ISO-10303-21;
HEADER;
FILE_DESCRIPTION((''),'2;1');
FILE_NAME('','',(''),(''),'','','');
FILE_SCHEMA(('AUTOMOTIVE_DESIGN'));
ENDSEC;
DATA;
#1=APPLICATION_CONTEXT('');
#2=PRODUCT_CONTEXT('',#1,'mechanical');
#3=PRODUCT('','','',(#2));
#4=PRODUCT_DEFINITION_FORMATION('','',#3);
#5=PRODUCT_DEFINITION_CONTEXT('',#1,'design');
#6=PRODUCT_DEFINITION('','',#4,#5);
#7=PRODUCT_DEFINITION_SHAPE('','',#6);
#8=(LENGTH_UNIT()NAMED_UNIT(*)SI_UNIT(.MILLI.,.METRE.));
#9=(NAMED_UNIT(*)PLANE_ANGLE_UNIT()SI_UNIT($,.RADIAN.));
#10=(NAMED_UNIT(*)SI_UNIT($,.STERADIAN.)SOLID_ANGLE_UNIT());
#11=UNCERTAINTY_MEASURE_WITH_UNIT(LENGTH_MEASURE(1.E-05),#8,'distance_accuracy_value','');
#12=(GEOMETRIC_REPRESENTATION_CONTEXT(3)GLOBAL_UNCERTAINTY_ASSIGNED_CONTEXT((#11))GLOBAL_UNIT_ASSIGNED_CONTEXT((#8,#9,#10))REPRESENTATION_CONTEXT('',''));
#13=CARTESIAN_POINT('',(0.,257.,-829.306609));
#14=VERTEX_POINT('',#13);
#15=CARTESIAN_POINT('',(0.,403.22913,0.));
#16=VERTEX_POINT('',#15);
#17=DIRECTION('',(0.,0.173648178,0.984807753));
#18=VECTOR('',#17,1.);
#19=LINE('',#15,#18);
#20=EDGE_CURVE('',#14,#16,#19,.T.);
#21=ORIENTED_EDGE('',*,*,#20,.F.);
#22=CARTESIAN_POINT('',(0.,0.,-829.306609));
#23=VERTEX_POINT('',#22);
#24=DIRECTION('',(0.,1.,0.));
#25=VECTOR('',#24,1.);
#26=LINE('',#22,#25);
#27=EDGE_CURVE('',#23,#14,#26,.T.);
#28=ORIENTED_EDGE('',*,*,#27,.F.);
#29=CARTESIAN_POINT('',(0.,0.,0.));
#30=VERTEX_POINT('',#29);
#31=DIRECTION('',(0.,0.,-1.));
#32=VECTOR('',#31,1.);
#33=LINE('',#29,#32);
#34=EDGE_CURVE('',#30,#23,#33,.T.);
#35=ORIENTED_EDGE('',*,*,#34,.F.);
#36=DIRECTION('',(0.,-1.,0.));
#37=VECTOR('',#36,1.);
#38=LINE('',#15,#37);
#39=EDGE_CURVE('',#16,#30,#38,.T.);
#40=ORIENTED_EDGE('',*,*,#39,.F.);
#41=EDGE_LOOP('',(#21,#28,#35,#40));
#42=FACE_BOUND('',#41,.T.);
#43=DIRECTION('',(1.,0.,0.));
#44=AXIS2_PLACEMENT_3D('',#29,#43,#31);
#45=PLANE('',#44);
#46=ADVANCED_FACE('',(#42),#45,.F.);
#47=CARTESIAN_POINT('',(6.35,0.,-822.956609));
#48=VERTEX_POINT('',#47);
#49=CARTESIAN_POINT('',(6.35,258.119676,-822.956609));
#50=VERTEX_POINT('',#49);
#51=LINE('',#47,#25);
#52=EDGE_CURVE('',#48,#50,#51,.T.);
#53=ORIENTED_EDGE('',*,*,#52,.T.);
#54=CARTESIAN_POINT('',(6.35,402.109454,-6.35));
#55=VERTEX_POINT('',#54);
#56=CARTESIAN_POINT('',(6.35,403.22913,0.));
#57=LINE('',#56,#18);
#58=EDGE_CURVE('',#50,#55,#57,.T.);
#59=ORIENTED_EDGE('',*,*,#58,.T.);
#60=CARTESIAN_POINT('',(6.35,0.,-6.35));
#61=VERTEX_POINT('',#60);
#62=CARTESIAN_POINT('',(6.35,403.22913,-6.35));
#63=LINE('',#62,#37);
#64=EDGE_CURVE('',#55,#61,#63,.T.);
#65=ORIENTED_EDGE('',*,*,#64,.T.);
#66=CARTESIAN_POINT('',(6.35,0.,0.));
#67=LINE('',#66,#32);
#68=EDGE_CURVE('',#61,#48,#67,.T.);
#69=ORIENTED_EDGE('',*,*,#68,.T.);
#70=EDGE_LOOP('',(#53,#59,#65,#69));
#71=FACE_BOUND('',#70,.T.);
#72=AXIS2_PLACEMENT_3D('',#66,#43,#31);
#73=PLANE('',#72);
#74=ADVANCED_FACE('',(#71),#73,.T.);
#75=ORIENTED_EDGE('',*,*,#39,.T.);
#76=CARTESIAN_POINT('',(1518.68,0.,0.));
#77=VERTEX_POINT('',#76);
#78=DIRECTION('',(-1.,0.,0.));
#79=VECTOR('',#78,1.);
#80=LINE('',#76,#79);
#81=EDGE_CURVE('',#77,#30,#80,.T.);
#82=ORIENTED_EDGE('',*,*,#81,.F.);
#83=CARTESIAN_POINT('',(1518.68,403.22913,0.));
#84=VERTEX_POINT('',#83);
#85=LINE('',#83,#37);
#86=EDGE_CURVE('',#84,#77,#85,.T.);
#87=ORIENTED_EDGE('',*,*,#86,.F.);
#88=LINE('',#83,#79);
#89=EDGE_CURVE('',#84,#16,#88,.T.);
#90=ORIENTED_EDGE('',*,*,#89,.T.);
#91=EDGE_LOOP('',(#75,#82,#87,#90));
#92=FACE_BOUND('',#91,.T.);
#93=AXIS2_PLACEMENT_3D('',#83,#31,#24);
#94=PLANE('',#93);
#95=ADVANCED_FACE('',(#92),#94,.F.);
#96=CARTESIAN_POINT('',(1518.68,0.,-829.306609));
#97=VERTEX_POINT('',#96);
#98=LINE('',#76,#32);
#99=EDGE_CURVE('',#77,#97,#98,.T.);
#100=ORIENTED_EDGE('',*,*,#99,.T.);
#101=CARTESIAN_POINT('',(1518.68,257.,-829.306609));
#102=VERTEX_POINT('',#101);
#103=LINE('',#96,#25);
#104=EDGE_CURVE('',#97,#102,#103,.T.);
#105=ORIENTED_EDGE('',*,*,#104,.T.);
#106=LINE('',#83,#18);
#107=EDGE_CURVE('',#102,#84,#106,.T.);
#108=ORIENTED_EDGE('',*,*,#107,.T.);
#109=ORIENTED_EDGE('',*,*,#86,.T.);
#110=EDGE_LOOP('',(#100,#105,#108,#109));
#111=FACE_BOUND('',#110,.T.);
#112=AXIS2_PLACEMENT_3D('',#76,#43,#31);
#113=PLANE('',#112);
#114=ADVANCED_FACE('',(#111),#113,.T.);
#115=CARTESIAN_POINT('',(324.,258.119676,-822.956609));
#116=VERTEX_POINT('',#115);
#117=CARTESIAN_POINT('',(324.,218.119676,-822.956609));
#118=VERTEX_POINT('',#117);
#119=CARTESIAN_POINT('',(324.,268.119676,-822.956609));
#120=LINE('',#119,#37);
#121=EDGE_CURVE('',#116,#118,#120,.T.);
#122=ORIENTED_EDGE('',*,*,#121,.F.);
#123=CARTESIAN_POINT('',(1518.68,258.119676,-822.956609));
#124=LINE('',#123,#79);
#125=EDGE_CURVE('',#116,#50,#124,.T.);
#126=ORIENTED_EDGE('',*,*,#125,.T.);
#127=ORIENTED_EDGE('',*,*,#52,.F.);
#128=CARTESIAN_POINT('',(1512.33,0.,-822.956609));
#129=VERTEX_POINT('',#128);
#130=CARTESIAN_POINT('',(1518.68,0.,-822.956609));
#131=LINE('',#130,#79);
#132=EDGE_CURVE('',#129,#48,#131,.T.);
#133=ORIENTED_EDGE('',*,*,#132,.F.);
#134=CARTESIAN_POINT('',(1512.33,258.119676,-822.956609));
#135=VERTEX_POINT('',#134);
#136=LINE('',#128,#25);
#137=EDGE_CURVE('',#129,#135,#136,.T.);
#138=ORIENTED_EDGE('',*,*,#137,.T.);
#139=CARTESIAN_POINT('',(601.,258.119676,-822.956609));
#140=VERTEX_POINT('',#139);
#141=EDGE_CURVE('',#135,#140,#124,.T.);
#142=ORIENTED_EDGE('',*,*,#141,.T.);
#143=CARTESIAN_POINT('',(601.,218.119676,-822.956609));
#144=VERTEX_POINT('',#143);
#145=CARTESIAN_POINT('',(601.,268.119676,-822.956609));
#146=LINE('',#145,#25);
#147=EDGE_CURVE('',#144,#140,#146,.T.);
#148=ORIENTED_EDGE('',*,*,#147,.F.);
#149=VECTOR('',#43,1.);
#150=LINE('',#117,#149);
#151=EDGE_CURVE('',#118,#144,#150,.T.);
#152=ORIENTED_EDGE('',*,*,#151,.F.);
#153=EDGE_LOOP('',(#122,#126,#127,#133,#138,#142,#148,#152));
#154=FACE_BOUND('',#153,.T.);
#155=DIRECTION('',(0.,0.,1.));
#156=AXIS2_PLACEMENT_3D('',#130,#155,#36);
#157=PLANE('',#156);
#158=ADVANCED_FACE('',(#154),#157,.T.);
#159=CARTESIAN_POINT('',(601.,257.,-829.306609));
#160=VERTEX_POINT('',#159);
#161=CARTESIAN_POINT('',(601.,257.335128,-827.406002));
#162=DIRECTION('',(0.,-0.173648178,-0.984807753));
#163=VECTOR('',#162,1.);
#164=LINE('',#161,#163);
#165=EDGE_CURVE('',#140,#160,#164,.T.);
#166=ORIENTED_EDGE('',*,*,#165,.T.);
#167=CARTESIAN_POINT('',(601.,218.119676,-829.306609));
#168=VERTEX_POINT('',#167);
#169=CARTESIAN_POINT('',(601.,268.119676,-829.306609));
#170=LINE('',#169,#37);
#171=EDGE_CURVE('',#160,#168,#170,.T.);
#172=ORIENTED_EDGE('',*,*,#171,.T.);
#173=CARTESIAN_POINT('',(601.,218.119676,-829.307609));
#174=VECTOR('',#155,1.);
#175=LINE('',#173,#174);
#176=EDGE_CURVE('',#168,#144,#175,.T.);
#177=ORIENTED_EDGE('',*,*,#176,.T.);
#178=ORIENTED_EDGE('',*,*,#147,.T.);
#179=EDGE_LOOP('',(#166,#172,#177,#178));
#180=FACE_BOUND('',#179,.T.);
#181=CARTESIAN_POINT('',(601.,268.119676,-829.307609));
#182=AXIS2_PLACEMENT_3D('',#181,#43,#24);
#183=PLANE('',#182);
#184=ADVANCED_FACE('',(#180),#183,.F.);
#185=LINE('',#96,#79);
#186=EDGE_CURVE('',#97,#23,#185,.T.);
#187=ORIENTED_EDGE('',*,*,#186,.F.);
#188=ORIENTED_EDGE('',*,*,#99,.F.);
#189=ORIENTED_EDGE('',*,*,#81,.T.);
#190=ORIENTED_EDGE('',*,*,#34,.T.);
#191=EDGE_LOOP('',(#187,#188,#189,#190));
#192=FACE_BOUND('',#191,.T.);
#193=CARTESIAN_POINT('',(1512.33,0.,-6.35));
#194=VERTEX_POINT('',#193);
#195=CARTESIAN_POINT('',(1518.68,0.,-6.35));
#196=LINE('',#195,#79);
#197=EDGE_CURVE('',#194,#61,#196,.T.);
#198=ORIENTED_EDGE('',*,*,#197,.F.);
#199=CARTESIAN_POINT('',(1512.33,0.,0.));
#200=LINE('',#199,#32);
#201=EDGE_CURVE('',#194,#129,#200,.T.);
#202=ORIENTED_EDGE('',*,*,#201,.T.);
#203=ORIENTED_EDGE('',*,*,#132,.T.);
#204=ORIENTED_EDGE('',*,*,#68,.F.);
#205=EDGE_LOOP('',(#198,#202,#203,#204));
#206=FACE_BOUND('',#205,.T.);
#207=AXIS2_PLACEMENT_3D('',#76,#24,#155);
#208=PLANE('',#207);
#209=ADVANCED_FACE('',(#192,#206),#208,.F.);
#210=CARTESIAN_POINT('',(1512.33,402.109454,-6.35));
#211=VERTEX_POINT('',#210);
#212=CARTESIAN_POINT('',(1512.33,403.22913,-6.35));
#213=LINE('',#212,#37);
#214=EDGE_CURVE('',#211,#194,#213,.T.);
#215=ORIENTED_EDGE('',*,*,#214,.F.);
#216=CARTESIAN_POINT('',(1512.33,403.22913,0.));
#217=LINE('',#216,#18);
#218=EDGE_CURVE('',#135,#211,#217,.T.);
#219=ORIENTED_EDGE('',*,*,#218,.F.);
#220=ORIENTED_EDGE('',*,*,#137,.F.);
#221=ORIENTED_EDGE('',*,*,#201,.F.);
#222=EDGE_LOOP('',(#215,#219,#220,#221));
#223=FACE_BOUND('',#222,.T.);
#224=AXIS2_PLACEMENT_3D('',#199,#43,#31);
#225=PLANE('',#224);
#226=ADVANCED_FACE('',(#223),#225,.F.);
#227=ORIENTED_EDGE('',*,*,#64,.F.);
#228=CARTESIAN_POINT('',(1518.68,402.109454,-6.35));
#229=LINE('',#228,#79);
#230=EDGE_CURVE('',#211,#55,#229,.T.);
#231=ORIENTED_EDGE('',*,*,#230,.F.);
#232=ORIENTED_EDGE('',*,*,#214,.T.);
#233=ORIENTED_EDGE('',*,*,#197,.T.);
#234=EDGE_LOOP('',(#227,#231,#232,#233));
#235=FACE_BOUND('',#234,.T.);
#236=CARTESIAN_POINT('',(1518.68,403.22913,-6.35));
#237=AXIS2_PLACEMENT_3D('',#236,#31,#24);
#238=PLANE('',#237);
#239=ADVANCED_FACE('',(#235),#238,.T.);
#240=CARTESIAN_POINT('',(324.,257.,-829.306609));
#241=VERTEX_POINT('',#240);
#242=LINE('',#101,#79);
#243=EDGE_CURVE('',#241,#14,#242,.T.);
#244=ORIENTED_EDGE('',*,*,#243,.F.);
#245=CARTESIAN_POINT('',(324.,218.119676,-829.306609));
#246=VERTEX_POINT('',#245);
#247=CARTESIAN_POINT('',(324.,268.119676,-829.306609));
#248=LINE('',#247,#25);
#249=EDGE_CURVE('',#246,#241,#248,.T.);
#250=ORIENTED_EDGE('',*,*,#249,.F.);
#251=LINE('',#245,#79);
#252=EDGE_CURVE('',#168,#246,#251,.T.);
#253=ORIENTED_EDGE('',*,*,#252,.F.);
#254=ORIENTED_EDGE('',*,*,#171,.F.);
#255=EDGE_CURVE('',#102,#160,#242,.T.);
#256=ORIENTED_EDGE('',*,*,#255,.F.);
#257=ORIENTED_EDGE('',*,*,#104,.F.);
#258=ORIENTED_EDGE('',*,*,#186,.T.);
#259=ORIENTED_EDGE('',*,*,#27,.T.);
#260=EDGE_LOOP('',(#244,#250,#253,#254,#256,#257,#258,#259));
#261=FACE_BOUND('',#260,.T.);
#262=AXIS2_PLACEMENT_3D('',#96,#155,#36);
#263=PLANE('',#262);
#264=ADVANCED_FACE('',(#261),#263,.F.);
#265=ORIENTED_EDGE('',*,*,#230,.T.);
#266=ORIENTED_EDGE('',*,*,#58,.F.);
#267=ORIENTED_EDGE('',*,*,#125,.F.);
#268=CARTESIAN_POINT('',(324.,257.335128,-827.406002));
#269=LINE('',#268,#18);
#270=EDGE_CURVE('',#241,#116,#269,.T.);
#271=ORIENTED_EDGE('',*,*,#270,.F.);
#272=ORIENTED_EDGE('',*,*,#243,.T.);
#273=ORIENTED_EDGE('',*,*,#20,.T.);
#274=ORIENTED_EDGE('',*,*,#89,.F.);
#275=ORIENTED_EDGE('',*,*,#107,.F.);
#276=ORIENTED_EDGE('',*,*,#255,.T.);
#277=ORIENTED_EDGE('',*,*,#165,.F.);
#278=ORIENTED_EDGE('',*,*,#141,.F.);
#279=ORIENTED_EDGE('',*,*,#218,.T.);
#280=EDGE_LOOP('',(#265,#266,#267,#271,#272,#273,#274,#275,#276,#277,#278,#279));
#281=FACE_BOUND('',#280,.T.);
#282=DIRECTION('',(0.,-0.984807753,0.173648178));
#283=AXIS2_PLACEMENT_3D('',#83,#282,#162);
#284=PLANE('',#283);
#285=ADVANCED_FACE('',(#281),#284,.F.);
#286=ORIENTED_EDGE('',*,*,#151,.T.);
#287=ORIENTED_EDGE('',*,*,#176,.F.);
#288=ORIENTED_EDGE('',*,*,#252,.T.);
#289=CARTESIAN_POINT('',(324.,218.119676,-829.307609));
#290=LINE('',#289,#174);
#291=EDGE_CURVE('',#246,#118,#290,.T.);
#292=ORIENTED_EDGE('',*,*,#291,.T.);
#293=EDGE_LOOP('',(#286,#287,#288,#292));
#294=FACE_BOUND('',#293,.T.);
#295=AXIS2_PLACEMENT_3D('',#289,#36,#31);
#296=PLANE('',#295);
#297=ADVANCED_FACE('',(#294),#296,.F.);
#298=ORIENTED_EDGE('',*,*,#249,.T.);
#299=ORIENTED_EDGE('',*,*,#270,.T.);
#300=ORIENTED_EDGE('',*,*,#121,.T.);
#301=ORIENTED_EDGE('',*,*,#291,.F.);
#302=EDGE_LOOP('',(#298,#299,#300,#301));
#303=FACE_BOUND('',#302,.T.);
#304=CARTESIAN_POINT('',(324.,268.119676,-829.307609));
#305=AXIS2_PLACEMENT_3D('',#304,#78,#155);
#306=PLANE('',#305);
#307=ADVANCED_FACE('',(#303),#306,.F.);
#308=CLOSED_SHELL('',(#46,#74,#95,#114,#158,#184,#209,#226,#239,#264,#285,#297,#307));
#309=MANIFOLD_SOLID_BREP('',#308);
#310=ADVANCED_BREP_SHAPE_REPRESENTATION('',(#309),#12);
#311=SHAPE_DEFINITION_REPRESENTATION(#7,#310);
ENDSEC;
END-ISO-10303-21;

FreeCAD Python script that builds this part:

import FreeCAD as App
import Part
import Sketcher
Q = App.Units.Quantity


def faces_at(feature, points):
    """Names of the faces that lie closest to the given points."""
    faces = feature.Shape.Faces
    near = lambda p: min(range(len(faces)), key=lambda i: faces[i].distToShape(Part.Vertex(*p))[0])
    return sorted({f"Face{near(p) + 1}" for p in points})


def add_polygon(sketch, points):
    """Adds a closed chain of lines whose ends are joined by coincident constraints."""
    first, n = sketch.GeometryCount, len(points)
    for a, b in zip(points, points[1:] + points[:1]):
        sketch.addGeometry(Part.LineSegment(App.Vector(*a, 0), App.Vector(*b, 0)), False)
    for i in range(n):
        sketch.addConstraint(Sketcher.Constraint("Coincident", first + i, 2, first + (i + 1) % n, 1))

doc = App.newDocument("Part")
body = doc.addObject("PartDesign::Body", "Body")

# Sketch on YZ plane
sketch1 = body.newObject("Sketcher::SketchObject", "Sketch")
sketch1.AttachmentSupport = (doc.getObject("YZ_Plane"), [""])
sketch1.MapMode = "FlatFace"
add_polygon(sketch1, [(403, 0), (0, 0), (0, -829), (257, -829)])  # lines 0-3
sketch1.addConstraint(Sketcher.Constraint("Horizontal", 0))
sketch1.addConstraint(Sketcher.Constraint("Vertical", 1))
sketch1.addConstraint(Sketcher.Constraint("Horizontal", 2))
sketch1.addConstraint(Sketcher.Constraint("Coincident", 0, 2, -1, 1))
sketch1.addConstraint(Sketcher.Constraint("DistanceX", 2, 1, 2, 2, 257.0))
sketch1.addConstraint(Sketcher.Constraint("Angle", 3, Q("80 deg")))
sketch1.addConstraint(Sketcher.Constraint("Distance", 3, 842.1))
pad1 = body.newObject("PartDesign::Pad", "Pad")
pad1.Profile = sketch1
pad1.Length = 1518.68
doc.recompute()

thickness = body.newObject("PartDesign::Thickness", "Thickness")
thickness.Base = (pad1, faces_at(pad1, [(759.34, 330.115, -414.653), (759.34, 0, -414.653)]))
thickness.Value = 6.35
thickness.Reversed = True
thickness.Join = "Intersection"

# Sketch on XY plane
sketch2 = body.newObject("Sketcher::SketchObject", "Sketch001")
sketch2.AttachmentSupport = (doc.getObject("XY_Plane"), [""])
sketch2.MapMode = "FlatFace"
sketch2.AttachmentOffset = App.Placement(App.Vector(0, 0, -822.956609), App.Rotation())
add_polygon(sketch2, [(324, 268), (324, 218), (601, 218), (601, 268)])  # lines 0-3
sketch2.addConstraint(Sketcher.Constraint("Vertical", 0))
sketch2.addConstraint(Sketcher.Constraint("Horizontal", 1))
sketch2.addConstraint(Sketcher.Constraint("Vertical", 2))
sketch2.addConstraint(Sketcher.Constraint("Horizontal", 3))
sketch2.addConstraint(Sketcher.Constraint("DistanceX", 1, 1, 1, 2, 277.0))
sketch2.addConstraint(Sketcher.Constraint("DistanceY", 0, 2, 0, 1, 50.0))
sketch2.addConstraint(Sketcher.Constraint("DistanceX", -1, 1, 0, 2, 324.0))
sketch2.addConstraint(Sketcher.Constraint("DistanceY", -1, 1, 0, 2, 218.119676))
pocket1 = body.newObject("PartDesign::Pocket", "Pocket")
pocket1.Profile = sketch2
pocket1.Type = "UpToFirst"

doc.recompute()
